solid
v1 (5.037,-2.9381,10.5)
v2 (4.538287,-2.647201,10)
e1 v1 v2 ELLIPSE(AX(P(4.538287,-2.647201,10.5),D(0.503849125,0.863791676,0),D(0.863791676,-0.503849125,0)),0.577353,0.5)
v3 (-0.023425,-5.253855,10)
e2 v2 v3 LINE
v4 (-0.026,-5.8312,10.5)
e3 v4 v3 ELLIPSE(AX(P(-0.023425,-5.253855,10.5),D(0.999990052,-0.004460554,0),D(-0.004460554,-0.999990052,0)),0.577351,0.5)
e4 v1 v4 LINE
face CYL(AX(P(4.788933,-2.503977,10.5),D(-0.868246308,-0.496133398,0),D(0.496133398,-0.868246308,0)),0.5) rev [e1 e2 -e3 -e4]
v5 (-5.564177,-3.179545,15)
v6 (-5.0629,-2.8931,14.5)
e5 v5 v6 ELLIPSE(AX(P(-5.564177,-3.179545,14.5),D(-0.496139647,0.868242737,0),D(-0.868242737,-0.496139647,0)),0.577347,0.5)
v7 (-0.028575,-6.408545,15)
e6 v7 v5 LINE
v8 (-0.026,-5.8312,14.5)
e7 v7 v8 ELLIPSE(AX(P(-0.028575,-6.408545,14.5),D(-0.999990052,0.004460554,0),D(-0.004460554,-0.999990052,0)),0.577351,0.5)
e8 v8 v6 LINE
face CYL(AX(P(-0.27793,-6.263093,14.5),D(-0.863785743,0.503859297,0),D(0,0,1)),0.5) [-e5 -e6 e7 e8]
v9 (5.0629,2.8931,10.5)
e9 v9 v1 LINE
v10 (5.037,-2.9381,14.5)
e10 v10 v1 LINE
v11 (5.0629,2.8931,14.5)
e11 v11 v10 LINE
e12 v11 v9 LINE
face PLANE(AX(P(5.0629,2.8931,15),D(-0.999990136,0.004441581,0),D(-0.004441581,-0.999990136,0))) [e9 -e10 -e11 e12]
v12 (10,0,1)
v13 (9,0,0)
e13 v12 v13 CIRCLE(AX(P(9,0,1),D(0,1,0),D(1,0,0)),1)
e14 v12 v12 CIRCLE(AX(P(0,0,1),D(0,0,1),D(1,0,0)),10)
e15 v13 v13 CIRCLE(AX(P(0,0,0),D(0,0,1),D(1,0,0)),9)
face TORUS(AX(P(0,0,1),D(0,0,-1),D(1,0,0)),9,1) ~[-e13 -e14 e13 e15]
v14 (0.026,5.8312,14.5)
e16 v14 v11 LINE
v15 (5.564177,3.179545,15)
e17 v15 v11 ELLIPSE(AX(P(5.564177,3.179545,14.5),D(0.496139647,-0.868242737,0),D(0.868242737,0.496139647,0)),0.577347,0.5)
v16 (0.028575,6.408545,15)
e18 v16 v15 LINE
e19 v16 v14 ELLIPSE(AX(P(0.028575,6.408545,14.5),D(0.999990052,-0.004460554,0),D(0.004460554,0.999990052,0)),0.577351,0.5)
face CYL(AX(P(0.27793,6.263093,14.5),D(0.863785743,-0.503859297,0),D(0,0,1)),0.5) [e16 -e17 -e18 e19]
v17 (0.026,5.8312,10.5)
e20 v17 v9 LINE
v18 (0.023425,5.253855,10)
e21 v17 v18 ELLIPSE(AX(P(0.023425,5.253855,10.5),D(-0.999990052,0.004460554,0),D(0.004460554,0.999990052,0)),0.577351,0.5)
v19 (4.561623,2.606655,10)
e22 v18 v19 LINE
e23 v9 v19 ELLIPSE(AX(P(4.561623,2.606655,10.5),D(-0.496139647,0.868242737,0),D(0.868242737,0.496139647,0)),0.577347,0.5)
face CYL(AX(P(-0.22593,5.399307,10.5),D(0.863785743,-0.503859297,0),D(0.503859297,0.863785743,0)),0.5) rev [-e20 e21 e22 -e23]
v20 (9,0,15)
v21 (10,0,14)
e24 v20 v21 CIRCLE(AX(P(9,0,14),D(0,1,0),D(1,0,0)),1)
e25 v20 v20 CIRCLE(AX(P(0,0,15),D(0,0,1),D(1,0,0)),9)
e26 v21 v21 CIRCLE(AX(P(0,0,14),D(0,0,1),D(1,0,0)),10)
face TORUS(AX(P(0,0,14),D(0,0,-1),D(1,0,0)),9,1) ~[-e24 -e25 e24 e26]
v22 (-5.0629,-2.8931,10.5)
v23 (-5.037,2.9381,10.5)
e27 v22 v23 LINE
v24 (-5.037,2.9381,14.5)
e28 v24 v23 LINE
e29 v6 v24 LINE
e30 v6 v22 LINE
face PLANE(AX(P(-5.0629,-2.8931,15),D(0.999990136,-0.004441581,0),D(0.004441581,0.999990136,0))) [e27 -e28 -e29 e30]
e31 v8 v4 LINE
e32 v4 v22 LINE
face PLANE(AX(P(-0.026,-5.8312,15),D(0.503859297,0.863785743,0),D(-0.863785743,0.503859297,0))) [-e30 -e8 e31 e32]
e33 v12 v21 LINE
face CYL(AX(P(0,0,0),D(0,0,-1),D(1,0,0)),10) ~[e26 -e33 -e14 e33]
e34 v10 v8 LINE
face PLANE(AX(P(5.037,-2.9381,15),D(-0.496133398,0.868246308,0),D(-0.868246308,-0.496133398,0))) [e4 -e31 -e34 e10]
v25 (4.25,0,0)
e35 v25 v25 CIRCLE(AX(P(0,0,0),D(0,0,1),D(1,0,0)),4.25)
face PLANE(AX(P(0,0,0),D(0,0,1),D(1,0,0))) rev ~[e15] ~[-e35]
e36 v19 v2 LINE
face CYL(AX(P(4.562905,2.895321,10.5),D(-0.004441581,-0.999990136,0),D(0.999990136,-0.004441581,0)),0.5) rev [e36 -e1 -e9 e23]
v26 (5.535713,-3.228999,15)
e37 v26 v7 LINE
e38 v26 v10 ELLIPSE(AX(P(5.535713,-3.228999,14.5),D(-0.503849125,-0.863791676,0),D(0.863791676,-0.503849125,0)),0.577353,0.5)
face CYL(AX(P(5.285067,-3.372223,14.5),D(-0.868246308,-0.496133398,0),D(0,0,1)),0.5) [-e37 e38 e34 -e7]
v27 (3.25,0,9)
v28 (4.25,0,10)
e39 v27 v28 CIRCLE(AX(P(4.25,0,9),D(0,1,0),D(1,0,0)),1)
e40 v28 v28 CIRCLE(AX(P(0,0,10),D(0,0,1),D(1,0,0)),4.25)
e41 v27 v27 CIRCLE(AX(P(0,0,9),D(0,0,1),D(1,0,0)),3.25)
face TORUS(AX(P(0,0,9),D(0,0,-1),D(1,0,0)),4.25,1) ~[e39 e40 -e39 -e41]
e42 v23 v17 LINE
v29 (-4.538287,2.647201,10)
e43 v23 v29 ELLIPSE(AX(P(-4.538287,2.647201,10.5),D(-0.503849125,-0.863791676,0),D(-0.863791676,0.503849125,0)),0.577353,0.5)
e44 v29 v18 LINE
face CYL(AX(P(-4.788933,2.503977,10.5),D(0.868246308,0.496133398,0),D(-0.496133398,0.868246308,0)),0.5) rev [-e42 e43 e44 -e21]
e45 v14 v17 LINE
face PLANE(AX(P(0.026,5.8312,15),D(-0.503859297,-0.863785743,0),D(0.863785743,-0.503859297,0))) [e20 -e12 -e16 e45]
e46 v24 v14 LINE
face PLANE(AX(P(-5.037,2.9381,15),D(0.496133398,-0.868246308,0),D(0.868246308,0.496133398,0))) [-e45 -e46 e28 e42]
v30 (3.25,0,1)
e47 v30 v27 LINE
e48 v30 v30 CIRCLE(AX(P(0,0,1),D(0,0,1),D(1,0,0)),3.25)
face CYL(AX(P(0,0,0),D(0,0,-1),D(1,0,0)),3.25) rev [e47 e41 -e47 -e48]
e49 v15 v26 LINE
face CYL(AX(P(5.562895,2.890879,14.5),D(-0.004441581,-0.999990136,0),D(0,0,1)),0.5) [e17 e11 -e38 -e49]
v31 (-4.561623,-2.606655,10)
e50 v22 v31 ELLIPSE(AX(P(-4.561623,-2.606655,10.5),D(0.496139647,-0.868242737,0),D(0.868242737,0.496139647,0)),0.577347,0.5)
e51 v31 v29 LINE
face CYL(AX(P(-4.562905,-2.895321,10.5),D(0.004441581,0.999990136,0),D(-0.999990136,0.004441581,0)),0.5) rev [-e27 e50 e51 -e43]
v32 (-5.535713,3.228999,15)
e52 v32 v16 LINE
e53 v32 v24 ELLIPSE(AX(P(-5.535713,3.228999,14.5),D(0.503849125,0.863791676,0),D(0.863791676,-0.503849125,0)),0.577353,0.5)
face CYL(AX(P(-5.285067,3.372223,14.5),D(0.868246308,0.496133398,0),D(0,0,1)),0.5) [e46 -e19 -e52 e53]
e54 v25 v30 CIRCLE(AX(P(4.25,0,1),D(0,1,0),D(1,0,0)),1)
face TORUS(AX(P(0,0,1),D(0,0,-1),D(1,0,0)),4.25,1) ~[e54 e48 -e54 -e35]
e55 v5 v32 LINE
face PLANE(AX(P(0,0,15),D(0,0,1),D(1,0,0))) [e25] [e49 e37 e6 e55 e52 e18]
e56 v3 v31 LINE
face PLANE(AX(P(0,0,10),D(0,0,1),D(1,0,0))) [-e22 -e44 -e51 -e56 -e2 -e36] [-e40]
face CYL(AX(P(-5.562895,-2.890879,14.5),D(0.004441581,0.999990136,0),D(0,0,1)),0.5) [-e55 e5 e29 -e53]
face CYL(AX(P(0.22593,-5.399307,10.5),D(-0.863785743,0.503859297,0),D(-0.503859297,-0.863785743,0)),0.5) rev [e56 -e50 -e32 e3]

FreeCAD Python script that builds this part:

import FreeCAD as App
import Part
import Sketcher


def edges_at(feature, points):
    """Names of the edges that pass closest to the given points."""
    edges = feature.Shape.Edges
    near = lambda p: min(range(len(edges)), key=lambda i: edges[i].distToShape(Part.Vertex(*p))[0])
    return sorted({f"Edge{near(p) + 1}" for p in points})


def add_polygon(sketch, points):
    """Adds a closed chain of lines whose ends are joined by coincident constraints."""
    first, n = sketch.GeometryCount, len(points)
    for a, b in zip(points, points[1:] + points[:1]):
        sketch.addGeometry(Part.LineSegment(App.Vector(*a, 0), App.Vector(*b, 0)), False)
    for i in range(n):
        sketch.addConstraint(Sketcher.Constraint("Coincident", first + i, 2, first + (i + 1) % n, 1))

doc = App.newDocument("Part")
params = doc.addObject("Spreadsheet::Sheet", "Params")
for row, (alias, value) in enumerate([
    ("sketch1_diameter", "20 mm"),
    ("sketch1_diameter2", "6.5 mm"),
    ("pad1_length", "15 mm"),
    ("sketch2_diameter", "6.5 mm"),
    ("pocket1_length", "5 mm"),
    ("fillet_radius", "0.5 mm"),
    ("fillet2_radius", "1 mm"),
], start=1):
    params.set(f"A{row}", alias)
    params.set(f"B{row}", "=" + value)
    params.setAlias(f"B{row}", alias)

body = doc.addObject("PartDesign::Body", "Body")

# Sketch on XY plane
sketch1 = body.newObject("Sketcher::SketchObject", "Sketch")
sketch1.AttachmentSupport = (doc.getObject("XY_Plane"), [""])
sketch1.MapMode = "FlatFace"
sketch1.addGeometry([
    Part.Circle(App.Vector(0, 0, 0), App.Vector(0, 0, 1), 10),
    Part.Circle(App.Vector(0, 0, 0), App.Vector(0, 0, 1), 3.25),
], False)
sketch1.addConstraint([
    Sketcher.Constraint("Coincident", 0, 3, -1, 1),
    Sketcher.Constraint("Coincident", 1, 3, -1, 1),
    Sketcher.Constraint("Diameter", 0, 20.0),
    Sketcher.Constraint("Diameter", 1, 6.5),
])
sketch1.setExpression("Constraints[2]", "Params.sketch1_diameter")
sketch1.setExpression("Constraints[3]", "Params.sketch1_diameter2")
pad1 = body.newObject("PartDesign::Pad", "Pad")
pad1.Profile = sketch1
pad1.setExpression("Length", "Params.pad1_length")

# Sketch on XY plane
sketch2 = body.newObject("Sketcher::SketchObject", "Sketch001")
sketch2.AttachmentSupport = (doc.getObject("XY_Plane"), [""])
sketch2.MapMode = "FlatFace"
sketch2.AttachmentOffset = App.Placement(App.Vector(0, 0, 15), App.Rotation())
add_polygon(sketch2, [(5.037, -2.9381), (5.0629, 2.8931), (0.026, 5.8312), (-5.037, 2.9381), (-5.0629, -2.8931), (-0.026, -5.8312)])  # lines 0-5
sketch2.addGeometry(Part.Circle(App.Vector(0, 0, 0), App.Vector(0, 0, 1), 3.25), False)  # 6
sketch2.addConstraint([
    Sketcher.Constraint("Coincident", 6, 3, -1, 1),
    Sketcher.Constraint("Symmetric", 0, 2, 3, 2, -1, 1),
    Sketcher.Constraint("Symmetric", 1, 2, 4, 2, -1, 1),
    Sketcher.Constraint("Symmetric", 2, 2, 5, 2, -1, 1),
    Sketcher.Constraint("Equal", 0, 1),
    Sketcher.Constraint("Equal", 1, 2),
    Sketcher.Constraint("Diameter", 6, 6.5),
    Sketcher.Constraint("DistanceX", 2, 2, 0, 2, 10.1),
    Sketcher.Constraint("DistanceX", -1, 1, 0, 2, 5.063),
    Sketcher.Constraint("DistanceY", -1, 1, 0, 2, 2.893),
    Sketcher.Constraint("DistanceX", -1, 1, 1, 2, 0.026),
])
sketch2.setExpression("Constraints[12]", "Params.sketch2_diameter")
pocket1 = body.newObject("PartDesign::Pocket", "Pocket")
pocket1.Profile = sketch2
pocket1.setExpression("Length", "Params.pocket1_length")
doc.recompute()

fillet = body.newObject("PartDesign::Fillet", "Fillet")
fillet.Base = (pocket1, edges_at(pocket1, [
    (-2.506, 4.385, 15),
    (2.544, 4.362, 15),
    (5.05, -0.022, 15),
    (2.506, -4.385, 15),
    (-2.544, -4.362, 15),
    (-5.05, 0.022, 15),
    (-5.05, 0.022, 10),
    (-2.506, 4.385, 10),
    (2.544, 4.362, 10),
    (5.05, -0.022, 10),
    (2.506, -4.385, 10),
    (-2.544, -4.362, 10),
]))
fillet.setExpression("Radius", "Params.fillet_radius")
doc.recompute()

fillet2 = body.newObject("PartDesign::Fillet", "Fillet001")
fillet2.Base = (fillet, edges_at(fillet, [
    (-3.25, 0, 10),
    (-3.25, 0, 0),
    (-10, 0, 15),
    (-10, 0, 0),
]))
fillet2.setExpression("Radius", "Params.fillet2_radius")

doc.recompute()
